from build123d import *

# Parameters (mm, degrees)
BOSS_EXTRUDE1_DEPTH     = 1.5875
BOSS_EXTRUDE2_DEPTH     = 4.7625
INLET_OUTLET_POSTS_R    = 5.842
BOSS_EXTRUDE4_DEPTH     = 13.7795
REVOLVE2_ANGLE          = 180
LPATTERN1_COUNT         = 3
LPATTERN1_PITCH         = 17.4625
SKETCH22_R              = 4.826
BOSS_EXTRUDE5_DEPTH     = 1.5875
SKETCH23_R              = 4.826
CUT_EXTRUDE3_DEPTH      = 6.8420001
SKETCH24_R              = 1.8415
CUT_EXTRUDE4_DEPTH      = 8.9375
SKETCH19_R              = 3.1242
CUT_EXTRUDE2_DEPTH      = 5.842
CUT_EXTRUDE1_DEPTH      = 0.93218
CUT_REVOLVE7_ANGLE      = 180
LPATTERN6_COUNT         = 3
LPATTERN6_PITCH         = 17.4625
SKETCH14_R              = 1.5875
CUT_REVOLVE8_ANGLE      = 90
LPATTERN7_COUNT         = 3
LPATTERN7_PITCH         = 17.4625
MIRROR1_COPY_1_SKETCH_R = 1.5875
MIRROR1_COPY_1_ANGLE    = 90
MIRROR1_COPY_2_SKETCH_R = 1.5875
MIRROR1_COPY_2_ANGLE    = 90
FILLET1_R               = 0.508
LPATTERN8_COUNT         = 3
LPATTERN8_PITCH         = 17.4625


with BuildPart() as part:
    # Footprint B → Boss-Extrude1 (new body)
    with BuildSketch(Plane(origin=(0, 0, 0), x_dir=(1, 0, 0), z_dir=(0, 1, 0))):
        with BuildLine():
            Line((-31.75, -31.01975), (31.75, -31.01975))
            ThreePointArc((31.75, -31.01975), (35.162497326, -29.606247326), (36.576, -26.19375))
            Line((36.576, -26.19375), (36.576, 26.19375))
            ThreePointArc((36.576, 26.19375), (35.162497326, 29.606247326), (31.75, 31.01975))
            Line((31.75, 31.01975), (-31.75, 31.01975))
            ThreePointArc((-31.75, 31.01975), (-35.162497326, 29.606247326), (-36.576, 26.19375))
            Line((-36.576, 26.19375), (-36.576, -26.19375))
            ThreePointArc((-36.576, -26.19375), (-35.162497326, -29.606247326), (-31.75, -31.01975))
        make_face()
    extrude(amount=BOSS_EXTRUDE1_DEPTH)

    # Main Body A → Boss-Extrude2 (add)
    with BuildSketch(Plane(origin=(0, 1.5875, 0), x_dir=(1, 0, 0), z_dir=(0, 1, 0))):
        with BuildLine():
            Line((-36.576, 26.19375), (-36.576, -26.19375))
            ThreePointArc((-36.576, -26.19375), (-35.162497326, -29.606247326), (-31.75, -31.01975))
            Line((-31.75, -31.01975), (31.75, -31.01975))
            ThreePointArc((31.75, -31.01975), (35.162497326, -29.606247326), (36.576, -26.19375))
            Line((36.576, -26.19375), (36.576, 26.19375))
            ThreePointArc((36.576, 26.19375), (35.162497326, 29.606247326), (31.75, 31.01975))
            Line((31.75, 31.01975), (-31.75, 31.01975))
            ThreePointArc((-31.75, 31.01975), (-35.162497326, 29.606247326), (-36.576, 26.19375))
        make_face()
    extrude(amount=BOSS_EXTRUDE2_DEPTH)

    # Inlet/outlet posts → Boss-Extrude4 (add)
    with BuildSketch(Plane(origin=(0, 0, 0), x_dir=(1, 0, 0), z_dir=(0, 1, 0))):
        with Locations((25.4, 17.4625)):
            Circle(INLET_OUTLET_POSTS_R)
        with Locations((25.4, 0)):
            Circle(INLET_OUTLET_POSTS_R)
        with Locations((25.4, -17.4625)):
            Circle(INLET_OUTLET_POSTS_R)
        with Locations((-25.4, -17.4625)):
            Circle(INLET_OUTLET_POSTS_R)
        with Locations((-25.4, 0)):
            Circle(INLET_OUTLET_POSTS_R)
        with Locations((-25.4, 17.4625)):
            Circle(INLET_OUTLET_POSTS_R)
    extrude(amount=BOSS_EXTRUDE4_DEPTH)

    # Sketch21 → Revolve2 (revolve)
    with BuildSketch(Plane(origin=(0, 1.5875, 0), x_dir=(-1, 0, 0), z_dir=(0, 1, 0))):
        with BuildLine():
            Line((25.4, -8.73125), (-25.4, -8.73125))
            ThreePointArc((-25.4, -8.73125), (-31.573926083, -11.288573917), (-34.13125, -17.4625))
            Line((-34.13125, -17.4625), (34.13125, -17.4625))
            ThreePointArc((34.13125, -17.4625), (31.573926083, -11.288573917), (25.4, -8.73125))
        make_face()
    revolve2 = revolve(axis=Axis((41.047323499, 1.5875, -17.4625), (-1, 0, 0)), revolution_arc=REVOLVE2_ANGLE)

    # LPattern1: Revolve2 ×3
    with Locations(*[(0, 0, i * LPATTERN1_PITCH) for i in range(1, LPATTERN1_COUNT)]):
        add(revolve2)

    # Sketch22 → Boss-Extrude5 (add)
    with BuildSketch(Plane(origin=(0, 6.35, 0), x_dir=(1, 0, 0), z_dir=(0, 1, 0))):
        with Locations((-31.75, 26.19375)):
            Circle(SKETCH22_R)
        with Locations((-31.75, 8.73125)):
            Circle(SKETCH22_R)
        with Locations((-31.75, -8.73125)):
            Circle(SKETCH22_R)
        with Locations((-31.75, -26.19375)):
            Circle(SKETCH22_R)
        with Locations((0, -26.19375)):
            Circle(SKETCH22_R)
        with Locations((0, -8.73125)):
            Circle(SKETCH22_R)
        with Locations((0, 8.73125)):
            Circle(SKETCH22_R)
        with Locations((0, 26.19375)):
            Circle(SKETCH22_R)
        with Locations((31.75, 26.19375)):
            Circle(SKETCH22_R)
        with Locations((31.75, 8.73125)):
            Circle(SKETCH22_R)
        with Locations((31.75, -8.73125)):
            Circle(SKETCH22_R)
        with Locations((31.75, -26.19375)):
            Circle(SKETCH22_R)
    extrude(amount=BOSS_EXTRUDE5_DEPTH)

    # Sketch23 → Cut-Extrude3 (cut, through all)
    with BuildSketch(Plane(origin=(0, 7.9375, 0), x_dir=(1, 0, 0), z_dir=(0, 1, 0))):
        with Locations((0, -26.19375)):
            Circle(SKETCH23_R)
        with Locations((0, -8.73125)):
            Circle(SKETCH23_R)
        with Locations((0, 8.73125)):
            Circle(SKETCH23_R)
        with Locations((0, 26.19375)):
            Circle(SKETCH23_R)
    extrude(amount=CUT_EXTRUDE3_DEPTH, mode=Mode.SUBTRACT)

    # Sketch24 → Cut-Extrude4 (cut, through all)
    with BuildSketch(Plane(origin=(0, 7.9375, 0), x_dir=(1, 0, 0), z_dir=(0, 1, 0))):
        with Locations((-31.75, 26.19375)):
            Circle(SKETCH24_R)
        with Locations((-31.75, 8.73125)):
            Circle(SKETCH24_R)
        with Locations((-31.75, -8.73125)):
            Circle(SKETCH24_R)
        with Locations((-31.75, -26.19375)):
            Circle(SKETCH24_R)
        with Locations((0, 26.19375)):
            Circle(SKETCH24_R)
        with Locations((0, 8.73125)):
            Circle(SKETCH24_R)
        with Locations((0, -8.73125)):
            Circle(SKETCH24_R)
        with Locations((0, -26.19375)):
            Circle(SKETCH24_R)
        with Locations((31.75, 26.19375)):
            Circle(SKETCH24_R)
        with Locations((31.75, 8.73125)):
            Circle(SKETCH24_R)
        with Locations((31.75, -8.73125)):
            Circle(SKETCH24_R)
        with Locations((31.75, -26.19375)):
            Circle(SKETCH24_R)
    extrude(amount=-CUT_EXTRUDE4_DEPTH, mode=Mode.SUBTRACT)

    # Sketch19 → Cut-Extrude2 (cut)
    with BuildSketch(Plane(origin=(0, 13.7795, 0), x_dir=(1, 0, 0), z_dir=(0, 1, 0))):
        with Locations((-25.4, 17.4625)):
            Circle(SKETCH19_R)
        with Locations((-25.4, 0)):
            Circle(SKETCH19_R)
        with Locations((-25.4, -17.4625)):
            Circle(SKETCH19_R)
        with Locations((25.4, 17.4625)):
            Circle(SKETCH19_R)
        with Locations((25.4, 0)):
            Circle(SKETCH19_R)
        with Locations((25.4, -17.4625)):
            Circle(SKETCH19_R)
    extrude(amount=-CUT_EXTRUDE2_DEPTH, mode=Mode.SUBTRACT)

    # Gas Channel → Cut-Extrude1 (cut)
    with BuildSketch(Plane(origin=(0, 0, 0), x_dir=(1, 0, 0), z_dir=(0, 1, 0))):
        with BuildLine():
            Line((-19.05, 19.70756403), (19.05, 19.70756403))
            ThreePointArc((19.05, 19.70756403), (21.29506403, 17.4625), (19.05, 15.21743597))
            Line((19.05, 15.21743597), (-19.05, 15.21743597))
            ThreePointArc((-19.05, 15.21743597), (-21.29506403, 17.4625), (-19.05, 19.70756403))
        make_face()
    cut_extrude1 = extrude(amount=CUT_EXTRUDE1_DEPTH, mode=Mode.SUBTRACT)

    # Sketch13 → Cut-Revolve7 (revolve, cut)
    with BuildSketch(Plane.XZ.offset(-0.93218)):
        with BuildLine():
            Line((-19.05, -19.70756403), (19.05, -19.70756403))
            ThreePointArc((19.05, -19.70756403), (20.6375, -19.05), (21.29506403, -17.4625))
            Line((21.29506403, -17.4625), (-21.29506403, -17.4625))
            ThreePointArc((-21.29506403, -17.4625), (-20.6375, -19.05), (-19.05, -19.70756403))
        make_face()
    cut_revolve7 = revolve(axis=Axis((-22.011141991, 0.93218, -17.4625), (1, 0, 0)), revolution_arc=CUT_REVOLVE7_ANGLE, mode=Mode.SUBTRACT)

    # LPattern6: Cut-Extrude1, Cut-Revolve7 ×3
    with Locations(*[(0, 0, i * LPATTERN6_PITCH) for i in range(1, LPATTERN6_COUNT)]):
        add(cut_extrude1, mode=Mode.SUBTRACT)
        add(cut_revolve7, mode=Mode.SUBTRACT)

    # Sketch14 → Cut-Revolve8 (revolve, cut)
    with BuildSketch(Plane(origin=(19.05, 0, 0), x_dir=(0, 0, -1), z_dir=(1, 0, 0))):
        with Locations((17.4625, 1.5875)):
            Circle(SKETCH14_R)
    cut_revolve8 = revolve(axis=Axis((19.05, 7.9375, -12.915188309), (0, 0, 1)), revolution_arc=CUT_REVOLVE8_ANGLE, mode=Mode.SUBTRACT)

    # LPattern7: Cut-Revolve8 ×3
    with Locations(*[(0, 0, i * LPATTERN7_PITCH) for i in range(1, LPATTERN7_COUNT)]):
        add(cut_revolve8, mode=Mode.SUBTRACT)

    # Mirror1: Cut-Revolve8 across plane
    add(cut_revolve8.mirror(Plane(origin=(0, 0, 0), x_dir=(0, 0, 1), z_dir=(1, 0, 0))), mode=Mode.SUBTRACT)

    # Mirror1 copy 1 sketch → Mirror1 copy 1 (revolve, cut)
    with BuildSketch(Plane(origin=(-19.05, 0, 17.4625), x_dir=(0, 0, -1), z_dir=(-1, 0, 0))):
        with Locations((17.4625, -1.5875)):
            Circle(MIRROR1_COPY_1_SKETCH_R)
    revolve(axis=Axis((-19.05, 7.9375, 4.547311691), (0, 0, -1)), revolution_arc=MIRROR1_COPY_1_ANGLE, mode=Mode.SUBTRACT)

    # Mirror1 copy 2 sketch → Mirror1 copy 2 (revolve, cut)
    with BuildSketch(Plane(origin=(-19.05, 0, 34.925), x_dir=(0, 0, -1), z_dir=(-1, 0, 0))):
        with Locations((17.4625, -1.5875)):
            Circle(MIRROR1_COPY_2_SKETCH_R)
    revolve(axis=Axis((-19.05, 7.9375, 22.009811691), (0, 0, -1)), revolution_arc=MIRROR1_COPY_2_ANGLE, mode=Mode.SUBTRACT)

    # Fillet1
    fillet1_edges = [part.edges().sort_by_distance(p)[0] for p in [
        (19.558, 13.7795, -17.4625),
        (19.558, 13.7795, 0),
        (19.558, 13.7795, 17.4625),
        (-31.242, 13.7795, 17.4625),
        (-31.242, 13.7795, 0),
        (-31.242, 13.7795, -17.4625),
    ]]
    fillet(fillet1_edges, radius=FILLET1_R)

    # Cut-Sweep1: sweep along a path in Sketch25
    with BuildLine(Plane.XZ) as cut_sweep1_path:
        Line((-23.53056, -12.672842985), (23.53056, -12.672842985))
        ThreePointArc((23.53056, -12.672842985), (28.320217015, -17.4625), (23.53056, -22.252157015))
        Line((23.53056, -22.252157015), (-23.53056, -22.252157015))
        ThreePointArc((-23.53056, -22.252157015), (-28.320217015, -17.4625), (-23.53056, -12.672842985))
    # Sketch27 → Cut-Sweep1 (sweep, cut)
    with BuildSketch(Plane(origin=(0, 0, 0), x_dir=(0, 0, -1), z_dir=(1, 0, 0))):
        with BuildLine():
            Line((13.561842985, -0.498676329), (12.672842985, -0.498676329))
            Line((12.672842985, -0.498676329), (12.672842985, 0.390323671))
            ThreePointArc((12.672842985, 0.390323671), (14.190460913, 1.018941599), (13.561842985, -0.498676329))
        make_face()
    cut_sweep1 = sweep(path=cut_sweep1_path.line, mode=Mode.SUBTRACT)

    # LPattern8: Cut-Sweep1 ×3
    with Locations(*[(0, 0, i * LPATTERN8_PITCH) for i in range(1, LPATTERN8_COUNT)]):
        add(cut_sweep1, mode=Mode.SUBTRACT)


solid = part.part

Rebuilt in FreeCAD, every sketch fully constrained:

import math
import FreeCAD as App
import Part
import Sketcher
Q = App.Units.Quantity


def edges_at(feature, points):
    """Names of the edges that pass closest to the given points."""
    edges = feature.Shape.Edges
    near = lambda p: min(range(len(edges)), key=lambda i: edges[i].distToShape(Part.Vertex(*p))[0])
    return sorted({f"Edge{near(p) + 1}" for p in points})

doc = App.newDocument("Part")
body = doc.addObject("PartDesign::Body", "Body")

# Sketch on XZ plane
sketch1 = doc.addObject("Sketcher::SketchObject", "Sketch")
body.addObject(sketch1)
sketch1.AttachmentSupport = (doc.XZ_Plane, [""])
sketch1.MapMode = "FlatFace"
sketch1.addGeometry(Part.LineSegment(App.Vector(-31.8, 31, 0), App.Vector(31.8, 31, 0)), False)
sketch1.addGeometry(Part.ArcOfCircle(Part.Circle(App.Vector(31.8, 26.2, 0), App.Vector(0, 0, 1), 4.8), math.radians(0), math.radians(90)), False)
sketch1.addGeometry(Part.LineSegment(App.Vector(36.6, 26.2, 0), App.Vector(36.6, -26.2, 0)), False)
sketch1.addGeometry(Part.ArcOfCircle(Part.Circle(App.Vector(31.8, -26.2, 0), App.Vector(0, 0, 1), 4.8), math.radians(-90), math.radians(0)), False)
sketch1.addGeometry(Part.LineSegment(App.Vector(31.8, -31, 0), App.Vector(-31.8, -31, 0)), False)
sketch1.addGeometry(Part.ArcOfCircle(Part.Circle(App.Vector(-31.8, -26.2, 0), App.Vector(0, 0, 1), 4.8), math.radians(180), math.radians(270)), False)
sketch1.addGeometry(Part.LineSegment(App.Vector(-36.6, -26.2, 0), App.Vector(-36.6, 26.2, 0)), False)
sketch1.addGeometry(Part.ArcOfCircle(Part.Circle(App.Vector(-31.8, 26.2, 0), App.Vector(0, 0, 1), 4.8), math.radians(90), math.radians(180)), False)
sketch1.addConstraint(Sketcher.Constraint("Tangent", 0, 2, 1, 2))
sketch1.addConstraint(Sketcher.Constraint("Tangent", 1, 1, 2, 1))
sketch1.addConstraint(Sketcher.Constraint("Tangent", 2, 2, 3, 2))
sketch1.addConstraint(Sketcher.Constraint("Tangent", 3, 1, 4, 1))
sketch1.addConstraint(Sketcher.Constraint("Tangent", 4, 2, 5, 2))
sketch1.addConstraint(Sketcher.Constraint("Tangent", 5, 1, 6, 1))
sketch1.addConstraint(Sketcher.Constraint("Tangent", 6, 2, 7, 2))
sketch1.addConstraint(Sketcher.Constraint("Tangent", 7, 1, 0, 1))
sketch1.addConstraint(Sketcher.Constraint("Horizontal", 0))
sketch1.addConstraint(Sketcher.Constraint("Vertical", 2))
sketch1.addConstraint(Sketcher.Constraint("Horizontal", 4))
sketch1.addConstraint(Sketcher.Constraint("Vertical", 6))
sketch1.addConstraint(Sketcher.Constraint("Equal", 1, 3))
sketch1.addConstraint(Sketcher.Constraint("Equal", 3, 5))
sketch1.addConstraint(Sketcher.Constraint("Equal", 5, 7))
sketch1.addConstraint(Sketcher.Constraint("Symmetric", 1, 3, 5, 3, -1, 1))
sketch1.addConstraint(Sketcher.Constraint("Radius", 1, Q("0.19 in")))
sketch1.addConstraint(Sketcher.Constraint("DistanceX", 0, 1, 0, 2, Q("2.5 in")))
sketch1.addConstraint(Sketcher.Constraint("DistanceY", 2, 2, 2, 1, Q("2.0625 in")))
pad1 = doc.addObject("PartDesign::Pad", "Pad")
body.addObject(pad1)
pad1.Profile = sketch1
pad1.Length = Q("0.0625 in")
pad1.Reversed = True

# Sketch on XZ plane
sketch2 = doc.addObject("Sketcher::SketchObject", "Sketch001")
body.addObject(sketch2)
sketch2.AttachmentSupport = (doc.XZ_Plane, [""])
sketch2.MapMode = "FlatFace"
sketch2.AttachmentOffset = App.Placement(App.Vector(0, 0, -0.0625 * 25.4), App.Rotation())
sketch2.addGeometry(Part.LineSegment(App.Vector(-36.6, -26.2, 0), App.Vector(-36.6, 26.2, 0)), False)
sketch2.addGeometry(Part.ArcOfCircle(Part.Circle(App.Vector(-31.8, 26.2, 0), App.Vector(0, 0, 1), 4.8), math.radians(90), math.radians(180)), False)
sketch2.addGeometry(Part.LineSegment(App.Vector(-31.8, 31, 0), App.Vector(31.8, 31, 0)), False)
sketch2.addGeometry(Part.ArcOfCircle(Part.Circle(App.Vector(31.8, 26.2, 0), App.Vector(0, 0, 1), 4.8), math.radians(0), math.radians(90)), False)
sketch2.addGeometry(Part.LineSegment(App.Vector(36.6, 26.2, 0), App.Vector(36.6, -26.2, 0)), False)
sketch2.addGeometry(Part.ArcOfCircle(Part.Circle(App.Vector(31.8, -26.2, 0), App.Vector(0, 0, 1), 4.8), math.radians(-90), math.radians(0)), False)
sketch2.addGeometry(Part.LineSegment(App.Vector(31.8, -31, 0), App.Vector(-31.8, -31, 0)), False)
sketch2.addGeometry(Part.ArcOfCircle(Part.Circle(App.Vector(-31.8, -26.2, 0), App.Vector(0, 0, 1), 4.8), math.radians(180), math.radians(270)), False)
sketch2.addConstraint(Sketcher.Constraint("Tangent", 0, 2, 1, 2))
sketch2.addConstraint(Sketcher.Constraint("Tangent", 1, 1, 2, 1))
sketch2.addConstraint(Sketcher.Constraint("Tangent", 2, 2, 3, 2))
sketch2.addConstraint(Sketcher.Constraint("Tangent", 3, 1, 4, 1))
sketch2.addConstraint(Sketcher.Constraint("Tangent", 4, 2, 5, 2))
sketch2.addConstraint(Sketcher.Constraint("Tangent", 5, 1, 6, 1))
sketch2.addConstraint(Sketcher.Constraint("Tangent", 6, 2, 7, 2))
sketch2.addConstraint(Sketcher.Constraint("Tangent", 7, 1, 0, 1))
sketch2.addConstraint(Sketcher.Constraint("Vertical", 0))
sketch2.addConstraint(Sketcher.Constraint("Horizontal", 2))
sketch2.addConstraint(Sketcher.Constraint("Vertical", 4))
sketch2.addConstraint(Sketcher.Constraint("Horizontal", 6))
sketch2.addConstraint(Sketcher.Constraint("Equal", 1, 3))
sketch2.addConstraint(Sketcher.Constraint("Equal", 3, 5))
sketch2.addConstraint(Sketcher.Constraint("Equal", 5, 7))
sketch2.addConstraint(Sketcher.Constraint("Symmetric", 1, 3, 5, 3, -1, 1))
sketch2.addConstraint(Sketcher.Constraint("Radius", 1, Q("0.19 in")))
sketch2.addConstraint(Sketcher.Constraint("DistanceX", 2, 1, 2, 2, Q("2.5 in")))
sketch2.addConstraint(Sketcher.Constraint("DistanceY", 0, 1, 0, 2, Q("2.0625 in")))
pad2 = doc.addObject("PartDesign::Pad", "Pad001")
body.addObject(pad2)
pad2.Profile = sketch2
pad2.Length = Q("0.1875 in")
pad2.Reversed = True

# Sketch on XZ plane
sketch3 = doc.addObject("Sketcher::SketchObject", "Sketch002")
body.addObject(sketch3)
sketch3.AttachmentSupport = (doc.XZ_Plane, [""])
sketch3.MapMode = "FlatFace"
sketch3.addGeometry(Part.Circle(App.Vector(25, -17, 0), App.Vector(0, 0, 1), 6), False)
sketch3.addGeometry(Part.Circle(App.Vector(25, 0, 0), App.Vector(0, 0, 1), 6), False)
sketch3.addGeometry(Part.Circle(App.Vector(25, 17, 0), App.Vector(0, 0, 1), 6), False)
sketch3.addGeometry(Part.Circle(App.Vector(-25, 17, 0), App.Vector(0, 0, 1), 6), False)
sketch3.addGeometry(Part.Circle(App.Vector(-25, 0, 0), App.Vector(0, 0, 1), 6), False)
sketch3.addGeometry(Part.Circle(App.Vector(-25, -17, 0), App.Vector(0, 0, 1), 6), False)
sketch3.addConstraint(Sketcher.Constraint("Equal", 0, 1))
sketch3.addConstraint(Sketcher.Constraint("Equal", 1, 2))
sketch3.addConstraint(Sketcher.Constraint("Equal", 2, 3))
sketch3.addConstraint(Sketcher.Constraint("Equal", 3, 4))
sketch3.addConstraint(Sketcher.Constraint("Equal", 4, 5))
sketch3.addConstraint(Sketcher.Constraint("Symmetric", 0, 3, 3, 3, -1, 1))
sketch3.addConstraint(Sketcher.Constraint("Symmetric", 1, 3, 4, 3, -1, 1))
sketch3.addConstraint(Sketcher.Constraint("Symmetric", 2, 3, 5, 3, -1, 1))
sketch3.addConstraint(Sketcher.Constraint("Symmetric", 2, 3, 3, 3, -2))
sketch3.addConstraint(Sketcher.Constraint("PointOnObject", 1, 3, -1))
sketch3.addConstraint(Sketcher.Constraint("Vertical", 0, 3, 1, 3))
sketch3.addConstraint(Sketcher.Constraint("Diameter", 0, Q("0.46 in")))
sketch3.addConstraint(Sketcher.Constraint("DistanceX", -1, 1, 0, 3, Q("1 in")))
sketch3.addConstraint(Sketcher.Constraint("DistanceY", 0, 3, -1, 1, Q("0.6875 in")))
pad3 = doc.addObject("PartDesign::Pad", "Pad002")
body.addObject(pad3)
pad3.Profile = sketch3
pad3.Length = Q("0.5425 in")
pad3.Reversed = True

# Sketch on XZ plane
sketch4 = doc.addObject("Sketcher::SketchObject", "Sketch003")
body.addObject(sketch4)
sketch4.AttachmentSupport = (doc.XZ_Plane, [""])
sketch4.MapMode = "FlatFace"
sketch4.AttachmentOffset = App.Placement(App.Vector(0, 0, -0.0625 * 25.4), App.Rotation())
sketch4.addGeometry(Part.LineSegment(App.Vector(-25, -9, 0), App.Vector(25, -9, 0)), False)
sketch4.addGeometry(Part.ArcOfCircle(Part.Circle(App.Vector(25, -17, 0), App.Vector(0, 0, 1), 9), math.radians(0), math.radians(90)), False)
sketch4.addGeometry(Part.LineSegment(App.Vector(34, -17, 0), App.Vector(-34, -17, 0)), False)
sketch4.addGeometry(Part.ArcOfCircle(Part.Circle(App.Vector(-25, -17, 0), App.Vector(0, 0, 1), 9), math.radians(90), math.radians(180)), False)
sketch4.addGeometry(Part.LineSegment(App.Vector(34, -17, 0), App.Vector(-34, -17, 0)), True)  # axis
sketch4.addConstraint(Sketcher.Constraint("Tangent", 0, 2, 1, 2))
sketch4.addConstraint(Sketcher.Constraint("Coincident", 1, 1, 2, 1))
sketch4.addConstraint(Sketcher.Constraint("Coincident", 2, 2, 3, 2))
sketch4.addConstraint(Sketcher.Constraint("Tangent", 3, 1, 0, 1))
sketch4.addConstraint(Sketcher.Constraint("Horizontal", 0))
sketch4.addConstraint(Sketcher.Constraint("Horizontal", 2))
sketch4.addConstraint(Sketcher.Constraint("Horizontal", 4))
sketch4.addConstraint(Sketcher.Constraint("Coincident", 4, 1, 1, 1))
sketch4.addConstraint(Sketcher.Constraint("Equal", 1, 3))
sketch4.addConstraint(Sketcher.Constraint("Horizontal", 3, 3, 1, 1))
sketch4.addConstraint(Sketcher.Constraint("Equal", 2, 4))
sketch4.addConstraint(Sketcher.Constraint("DistanceX", 0, 1, 0, 2, Q("2 in")))
sketch4.addConstraint(Sketcher.Constraint("DistanceX", -1, 1, 1, 3, Q("1 in")))
sketch4.addConstraint(Sketcher.Constraint("Radius", 1, Q("0.34375 in")))
sketch4.addConstraint(Sketcher.Constraint("DistanceY", 1, 3, -1, 1, Q("0.6875 in")))
revolution = doc.addObject("PartDesign::Revolution", "Revolution")
body.addObject(revolution)
revolution.Profile = sketch4
revolution.ReferenceAxis = (sketch4, ["Axis0"])
revolution.Angle = 180
doc.recompute()

linearpattern = doc.addObject("PartDesign::LinearPattern", "LinearPattern")
body.addObject(linearpattern)
linearpattern.Originals = [revolution]
linearpattern.Direction = (doc.Z_Axis, [""])
linearpattern.Mode = "offset"
linearpattern.Offset = Q("0.6875 in")
linearpattern.Occurrences = 3
body.Tip = linearpattern

# Sketch on XZ plane
sketch5 = doc.addObject("Sketcher::SketchObject", "Sketch004")
body.addObject(sketch5)
sketch5.AttachmentSupport = (doc.XZ_Plane, [""])
sketch5.MapMode = "FlatFace"
sketch5.AttachmentOffset = App.Placement(App.Vector(0, 0, -0.25 * 25.4), App.Rotation())
sketch5.addGeometry(Part.Circle(App.Vector(-31.8, -26.2, 0), App.Vector(0, 0, 1), 4.8), False)
sketch5.addGeometry(Part.Circle(App.Vector(-31.8, -8.7, 0), App.Vector(0, 0, 1), 4.8), False)
sketch5.addGeometry(Part.Circle(App.Vector(-31.8, 8.7, 0), App.Vector(0, 0, 1), 4.8), False)
sketch5.addGeometry(Part.Circle(App.Vector(-31.8, 26.2, 0), App.Vector(0, 0, 1), 4.8), False)
sketch5.addGeometry(Part.Circle(App.Vector(0, 26.2, 0), App.Vector(0, 0, 1), 4.8), False)
sketch5.addGeometry(Part.Circle(App.Vector(0, 8.7, 0), App.Vector(0, 0, 1), 4.8), False)
sketch5.addGeometry(Part.Circle(App.Vector(0, -8.7, 0), App.Vector(0, 0, 1), 4.8), False)
sketch5.addGeometry(Part.Circle(App.Vector(0, -26.2, 0), App.Vector(0, 0, 1), 4.8), False)
sketch5.addGeometry(Part.Circle(App.Vector(31.8, -26.2, 0), App.Vector(0, 0, 1), 4.8), False)
sketch5.addGeometry(Part.Circle(App.Vector(31.8, -8.7, 0), App.Vector(0, 0, 1), 4.8), False)
sketch5.addGeometry(Part.Circle(App.Vector(31.8, 8.7, 0), App.Vector(0, 0, 1), 4.8), False)
sketch5.addGeometry(Part.Circle(App.Vector(31.8, 26.2, 0), App.Vector(0, 0, 1), 4.8), False)
sketch5.addConstraint(Sketcher.Constraint("Equal", 0, 1))
sketch5.addConstraint(Sketcher.Constraint("Equal", 1, 2))
sketch5.addConstraint(Sketcher.Constraint("Equal", 2, 3))
sketch5.addConstraint(Sketcher.Constraint("Equal", 3, 4))
sketch5.addConstraint(Sketcher.Constraint("Equal", 4, 5))
sketch5.addConstraint(Sketcher.Constraint("Equal", 5, 6))
sketch5.addConstraint(Sketcher.Constraint("Equal", 6, 7))
sketch5.addConstraint(Sketcher.Constraint("Equal", 7, 8))
sketch5.addConstraint(Sketcher.Constraint("Equal", 8, 9))
sketch5.addConstraint(Sketcher.Constraint("Equal", 9, 10))
sketch5.addConstraint(Sketcher.Constraint("Equal", 10, 11))
sketch5.addConstraint(Sketcher.Constraint("Symmetric", 5, 3, 6, 3, -1, 1))
sketch5.addConstraint(Sketcher.Constraint("Symmetric", 4, 3, 7, 3, -1, 1))
sketch5.addConstraint(Sketcher.Constraint("Symmetric", 3, 3, 8, 3, -1, 1))
sketch5.addConstraint(Sketcher.Constraint("Symmetric", 2, 3, 9, 3, -1, 1))
sketch5.addConstraint(Sketcher.Constraint("Symmetric", 1, 3, 10, 3, -1, 1))
sketch5.addConstraint(Sketcher.Constraint("Symmetric", 0, 3, 11, 3, -1, 1))
sketch5.addConstraint(Sketcher.Constraint("Symmetric", 0, 3, 8, 3, -2))
sketch5.addConstraint(Sketcher.Constraint("Symmetric", 1, 3, 9, 3, -2))
sketch5.addConstraint(Sketcher.Constraint("PointOnObject", 4, 3, -2))
sketch5.addConstraint(Sketcher.Constraint("PointOnObject", 5, 3, -2))
sketch5.addConstraint(Sketcher.Constraint("Horizontal", 3, 3, 4, 3))
sketch5.addConstraint(Sketcher.Constraint("Horizontal", 2, 3, 5, 3))
sketch5.addConstraint(Sketcher.Constraint("Vertical", 0, 3, 1, 3))
sketch5.addConstraint(Sketcher.Constraint("Diameter", 0, Q("0.38 in")))
sketch5.addConstraint(Sketcher.Constraint("DistanceX", 0, 3, 8, 3, Q("2.5 in")))
sketch5.addConstraint(Sketcher.Constraint("DistanceY", 0, 3, -1, 1, Q("1.03125 in")))
sketch5.addConstraint(Sketcher.Constraint("DistanceY", 1, 3, -1, 1, Q("0.34375 in")))
pad4 = doc.addObject("PartDesign::Pad", "Pad003")
body.addObject(pad4)
pad4.Profile = sketch5
pad4.Length = Q("0.0625 in")
pad4.Reversed = True

# Sketch on XZ plane
sketch6 = doc.addObject("Sketcher::SketchObject", "Sketch005")
body.addObject(sketch6)
sketch6.AttachmentSupport = (doc.XZ_Plane, [""])
sketch6.MapMode = "FlatFace"
sketch6.AttachmentOffset = App.Placement(App.Vector(0, 0, -0.3125 * 25.4), App.Rotation())
sketch6.addGeometry(Part.Circle(App.Vector(0, 26.2, 0), App.Vector(0, 0, 1), 4.8), False)
sketch6.addGeometry(Part.Circle(App.Vector(0, 8.7, 0), App.Vector(0, 0, 1), 4.8), False)
sketch6.addGeometry(Part.Circle(App.Vector(0, -8.7, 0), App.Vector(0, 0, 1), 4.8), False)
sketch6.addGeometry(Part.Circle(App.Vector(0, -26.2, 0), App.Vector(0, 0, 1), 4.8), False)
sketch6.addConstraint(Sketcher.Constraint("Equal", 0, 1))
sketch6.addConstraint(Sketcher.Constraint("Equal", 1, 2))
sketch6.addConstraint(Sketcher.Constraint("Equal", 2, 3))
sketch6.addConstraint(Sketcher.Constraint("Symmetric", 1, 3, 2, 3, -1, 1))
sketch6.addConstraint(Sketcher.Constraint("Symmetric", 0, 3, 3, 3, -1, 1))
sketch6.addConstraint(Sketcher.Constraint("PointOnObject", 0, 3, -2))
sketch6.addConstraint(Sketcher.Constraint("PointOnObject", 1, 3, -2))
sketch6.addConstraint(Sketcher.Constraint("Diameter", 0, Q("0.38 in")))
sketch6.addConstraint(Sketcher.Constraint("DistanceY", -1, 1, 0, 3, Q("1.03125 in")))
sketch6.addConstraint(Sketcher.Constraint("DistanceY", -1, 1, 1, 3, Q("0.34375 in")))
pocket1 = doc.addObject("PartDesign::Pocket", "Pocket")
body.addObject(pocket1)
pocket1.Profile = sketch6
pocket1.Type = "ThroughAll"

# Sketch on XZ plane
sketch7 = doc.addObject("Sketcher::SketchObject", "Sketch006")
body.addObject(sketch7)
sketch7.AttachmentSupport = (doc.XZ_Plane, [""])
sketch7.MapMode = "FlatFace"
sketch7.AttachmentOffset = App.Placement(App.Vector(0, 0, -0.3125 * 25.4), App.Rotation())
sketch7.addGeometry(Part.Circle(App.Vector(-31.8, -26.2, 0), App.Vector(0, 0, 1), 1.8), False)
sketch7.addGeometry(Part.Circle(App.Vector(-31.8, -8.7, 0), App.Vector(0, 0, 1), 1.8), False)
sketch7.addGeometry(Part.Circle(App.Vector(-31.8, 8.7, 0), App.Vector(0, 0, 1), 1.8), False)
sketch7.addGeometry(Part.Circle(App.Vector(-31.8, 26.2, 0), App.Vector(0, 0, 1), 1.8), False)
sketch7.addGeometry(Part.Circle(App.Vector(0, -26.2, 0), App.Vector(0, 0, 1), 1.8), False)
sketch7.addGeometry(Part.Circle(App.Vector(0, -8.7, 0), App.Vector(0, 0, 1), 1.8), False)
sketch7.addGeometry(Part.Circle(App.Vector(0, 8.7, 0), App.Vector(0, 0, 1), 1.8), False)
sketch7.addGeometry(Part.Circle(App.Vector(0, 26.2, 0), App.Vector(0, 0, 1), 1.8), False)
sketch7.addGeometry(Part.Circle(App.Vector(31.8, -26.2, 0), App.Vector(0, 0, 1), 1.8), False)
sketch7.addGeometry(Part.Circle(App.Vector(31.8, -8.7, 0), App.Vector(0, 0, 1), 1.8), False)
sketch7.addGeometry(Part.Circle(App.Vector(31.8, 8.7, 0), App.Vector(0, 0, 1), 1.8), False)
sketch7.addGeometry(Part.Circle(App.Vector(31.8, 26.2, 0), App.Vector(0, 0, 1), 1.8), False)
sketch7.addConstraint(Sketcher.Constraint("Equal", 0, 1))
sketch7.addConstraint(Sketcher.Constraint("Equal", 1, 2))
sketch7.addConstraint(Sketcher.Constraint("Equal", 2, 3))
sketch7.addConstraint(Sketcher.Constraint("Equal", 3, 4))
sketch7.addConstraint(Sketcher.Constraint("Equal", 4, 5))
sketch7.addConstraint(Sketcher.Constraint("Equal", 5, 6))
sketch7.addConstraint(Sketcher.Constraint("Equal", 6, 7))
sketch7.addConstraint(Sketcher.Constraint("Equal", 7, 8))
sketch7.addConstraint(Sketcher.Constraint("Equal", 8, 9))
sketch7.addConstraint(Sketcher.Constraint("Equal", 9, 10))
sketch7.addConstraint(Sketcher.Constraint("Equal", 10, 11))
sketch7.addConstraint(Sketcher.Constraint("Symmetric", 5, 3, 6, 3, -1, 1))
sketch7.addConstraint(Sketcher.Constraint("Symmetric", 4, 3, 7, 3, -1, 1))
sketch7.addConstraint(Sketcher.Constraint("Symmetric", 3, 3, 8, 3, -1, 1))
sketch7.addConstraint(Sketcher.Constraint("Symmetric", 2, 3, 9, 3, -1, 1))
sketch7.addConstraint(Sketcher.Constraint("Symmetric", 1, 3, 10, 3, -1, 1))
sketch7.addConstraint(Sketcher.Constraint("Symmetric", 0, 3, 11, 3, -1, 1))
sketch7.addConstraint(Sketcher.Constraint("Symmetric", 0, 3, 8, 3, -2))
sketch7.addConstraint(Sketcher.Constraint("Symmetric", 1, 3, 9, 3, -2))
sketch7.addConstraint(Sketcher.Constraint("PointOnObject", 4, 3, -2))
sketch7.addConstraint(Sketcher.Constraint("PointOnObject", 5, 3, -2))
sketch7.addConstraint(Sketcher.Constraint("Horizontal", 0, 3, 4, 3))
sketch7.addConstraint(Sketcher.Constraint("Horizontal", 1, 3, 5, 3))
sketch7.addConstraint(Sketcher.Constraint("Vertical", 0, 3, 1, 3))
sketch7.addConstraint(Sketcher.Constraint("Diameter", 0, Q("0.145 in")))
sketch7.addConstraint(Sketcher.Constraint("DistanceX", 0, 3, 8, 3, Q("2.5 in")))
sketch7.addConstraint(Sketcher.Constraint("DistanceY", 0, 3, -1, 1, Q("1.03125 in")))
sketch7.addConstraint(Sketcher.Constraint("DistanceY", 1, 3, -1, 1, Q("0.34375 in")))
pocket2 = doc.addObject("PartDesign::Pocket", "Pocket001")
body.addObject(pocket2)
pocket2.Profile = sketch7
pocket2.Type = "ThroughAll"
pocket2.Reversed = True

# Sketch on XZ plane
sketch8 = doc.addObject("Sketcher::SketchObject", "Sketch007")
body.addObject(sketch8)
sketch8.AttachmentSupport = (doc.XZ_Plane, [""])
sketch8.MapMode = "FlatFace"
sketch8.AttachmentOffset = App.Placement(App.Vector(0, 0, -0.5425 * 25.4), App.Rotation())
sketch8.addGeometry(Part.Circle(App.Vector(-25.4, -17.5, 0), App.Vector(0, 0, 1), 3.1), False)
sketch8.addGeometry(Part.Circle(App.Vector(-25.4, 0, 0), App.Vector(0, 0, 1), 3.1), False)
sketch8.addGeometry(Part.Circle(App.Vector(-25.4, 17.5, 0), App.Vector(0, 0, 1), 3.1), False)
sketch8.addGeometry(Part.Circle(App.Vector(25.4, -17.5, 0), App.Vector(0, 0, 1), 3.1), False)
sketch8.addGeometry(Part.Circle(App.Vector(25.4, 0, 0), App.Vector(0, 0, 1), 3.1), False)
sketch8.addGeometry(Part.Circle(App.Vector(25.4, 17.5, 0), App.Vector(0, 0, 1), 3.1), False)
sketch8.addConstraint(Sketcher.Constraint("Equal", 0, 1))
sketch8.addConstraint(Sketcher.Constraint("Equal", 1, 2))
sketch8.addConstraint(Sketcher.Constraint("Equal", 2, 3))
sketch8.addConstraint(Sketcher.Constraint("Equal", 3, 4))
sketch8.addConstraint(Sketcher.Constraint("Equal", 4, 5))
sketch8.addConstraint(Sketcher.Constraint("Symmetric", 2, 3, 3, 3, -1, 1))
sketch8.addConstraint(Sketcher.Constraint("Symmetric", 1, 3, 4, 3, -1, 1))
sketch8.addConstraint(Sketcher.Constraint("Symmetric", 0, 3, 5, 3, -1, 1))
sketch8.addConstraint(Sketcher.Constraint("Symmetric", 0, 3, 3, 3, -2))
sketch8.addConstraint(Sketcher.Constraint("PointOnObject", 1, 3, -1))
sketch8.addConstraint(Sketcher.Constraint("Vertical", 0, 3, 1, 3))
sketch8.addConstraint(Sketcher.Constraint("Diameter", 0, Q("0.246 in")))
sketch8.addConstraint(Sketcher.Constraint("DistanceX", 0, 3, -1, 1, Q("1 in")))
sketch8.addConstraint(Sketcher.Constraint("DistanceY", 0, 3, -1, 1, Q("0.6875 in")))
pocket3 = doc.addObject("PartDesign::Pocket", "Pocket002")
body.addObject(pocket3)
pocket3.Profile = sketch8
pocket3.Length = Q("0.23 in")
pocket3.Reversed = True

# Sketch on XZ plane
sketch9 = doc.addObject("Sketcher::SketchObject", "Sketch008")
body.addObject(sketch9)
sketch9.AttachmentSupport = (doc.XZ_Plane, [""])
sketch9.MapMode = "FlatFace"
sketch9.addGeometry(Part.LineSegment(App.Vector(19.1, -19.7, 0), App.Vector(-19.1, -19.7, 0)), False)
sketch9.addGeometry(Part.ArcOfCircle(Part.Circle(App.Vector(-19.1, -17.5, 0), App.Vector(0, 0, 1), 2.2), math.radians(90), math.radians(270)), False)
sketch9.addGeometry(Part.LineSegment(App.Vector(-19.1, -15.2, 0), App.Vector(19.1, -15.2, 0)), False)
sketch9.addGeometry(Part.ArcOfCircle(Part.Circle(App.Vector(19.1, -17.5, 0), App.Vector(0, 0, 1), 2.2), math.radians(-90), math.radians(90)), False)
sketch9.addConstraint(Sketcher.Constraint("Tangent", 0, 2, 1, 2))
sketch9.addConstraint(Sketcher.Constraint("Tangent", 1, 1, 2, 1))
sketch9.addConstraint(Sketcher.Constraint("Tangent", 2, 2, 3, 2))
sketch9.addConstraint(Sketcher.Constraint("Tangent", 3, 1, 0, 1))
sketch9.addConstraint(Sketcher.Constraint("Horizontal", 0))
sketch9.addConstraint(Sketcher.Constraint("Horizontal", 2))
sketch9.addConstraint(Sketcher.Constraint("DistanceX", 0, 2, 0, 1, Q("1.5 in")))
sketch9.addConstraint(Sketcher.Constraint("DistanceX", 1, 3, -1, 1, Q("0.75 in")))
sketch9.addConstraint(Sketcher.Constraint("DistanceY", 1, 3, -1, 1, Q("0.6875 in")))
sketch9.addConstraint(Sketcher.Constraint("Radius", 1, 2.245064))
pocket4 = doc.addObject("PartDesign::Pocket", "Pocket003")
body.addObject(pocket4)
pocket4.Profile = sketch9
pocket4.Length = Q("0.0367 in")

# Sketch on XZ plane
sketch10 = doc.addObject("Sketcher::SketchObject", "Sketch009")
body.addObject(sketch10)
sketch10.AttachmentSupport = (doc.XZ_Plane, [""])
sketch10.MapMode = "FlatFace"
sketch10.AttachmentOffset = App.Placement(App.Vector(0, 0, -0.0367 * 25.4), App.Rotation())
sketch10.addGeometry(Part.LineSegment(App.Vector(-19.1, -19.7, 0), App.Vector(19.1, -19.7, 0)), False)
sketch10.addGeometry(Part.ArcOfCircle(Part.Circle(App.Vector(19.1, -17.5, 0), App.Vector(0, 0, 1), 2.2), math.radians(-90), math.radians(0)), False)
sketch10.addGeometry(Part.LineSegment(App.Vector(21.3, -17.5, 0), App.Vector(-21.3, -17.5, 0)), False)
sketch10.addGeometry(Part.ArcOfCircle(Part.Circle(App.Vector(-19.1, -17.5, 0), App.Vector(0, 0, 1), 2.2), math.radians(180), math.radians(270)), False)
sketch10.addGeometry(Part.LineSegment(App.Vector(-21.3, -17.5, 0), App.Vector(21.3, -17.5, 0)), True)  # axis
sketch10.addConstraint(Sketcher.Constraint("Tangent", 0, 2, 1, 1))
sketch10.addConstraint(Sketcher.Constraint("Coincident", 1, 2, 2, 1))
sketch10.addConstraint(Sketcher.Constraint("Coincident", 2, 2, 3, 1))
sketch10.addConstraint(Sketcher.Constraint("Tangent", 3, 2, 0, 1))
sketch10.addConstraint(Sketcher.Constraint("Horizontal", 0))
sketch10.addConstraint(Sketcher.Constraint("Horizontal", 2))
sketch10.addConstraint(Sketcher.Constraint("Horizontal", 4))
sketch10.addConstraint(Sketcher.Constraint("Coincident", 4, 1, 2, 2))
sketch10.addConstraint(Sketcher.Constraint("Equal", 1, 3))
sketch10.addConstraint(Sketcher.Constraint("Horizontal", 3, 3, 1, 2))
sketch10.addConstraint(Sketcher.Constraint("Equal", 2, 4))
sketch10.addConstraint(Sketcher.Constraint("DistanceX", 0, 1, 0, 2, Q("1.5 in")))
sketch10.addConstraint(Sketcher.Constraint("DistanceX", -1, 1, 1, 3, Q("0.75 in")))
sketch10.addConstraint(Sketcher.Constraint("DistanceY", 1, 3, -1, 1, Q("0.6875 in")))
sketch10.addConstraint(Sketcher.Constraint("Radius", 1, 2.245064))
groove = doc.addObject("PartDesign::Groove", "Groove")
body.addObject(groove)
groove.Profile = sketch10
groove.ReferenceAxis = (sketch10, ["Axis0"])
groove.Angle = 180
doc.recompute()

linearpattern2 = doc.addObject("PartDesign::LinearPattern", "LinearPattern001")
body.addObject(linearpattern2)
linearpattern2.Originals = [pocket4, groove]
linearpattern2.Direction = (doc.Z_Axis, [""])
linearpattern2.Mode = "offset"
linearpattern2.Offset = Q("0.6875 in")
linearpattern2.Occurrences = 3
body.Tip = linearpattern2

# Sketch on YZ plane
sketch11 = doc.addObject("Sketcher::SketchObject", "Sketch010")
body.addObject(sketch11)
sketch11.AttachmentSupport = (doc.YZ_Plane, [""])
sketch11.MapMode = "FlatFace"
sketch11.AttachmentOffset = App.Placement(App.Vector(0, 0, 0.75 * 25.4), App.Rotation())
sketch11.addGeometry(Part.Circle(App.Vector(1.6, -17.5, 0), App.Vector(0, 0, 1), 1.6), False)
sketch11.addGeometry(Part.LineSegment(App.Vector(7.9, -17.5, 0), App.Vector(7.9, -7.5, 0)), True)  # axis
sketch11.addConstraint(Sketcher.Constraint("Vertical", 1))
sketch11.addConstraint(Sketcher.Constraint("Horizontal", 0, 3, 1, 1))
sketch11.addConstraint(Sketcher.Constraint("Diameter", 0, Q("0.125 in")))
sketch11.addConstraint(Sketcher.Constraint("DistanceX", 0, 3, 1, 1, Q("0.25 in")))
sketch11.addConstraint(Sketcher.Constraint("DistanceX", -1, 1, 0, 3, Q("0.0625 in")))
sketch11.addConstraint(Sketcher.Constraint("DistanceY", 0, 3, -1, 1, Q("0.6875 in")))
sketch11.addConstraint(Sketcher.Constraint("DistanceY", 1, 1, 1, 2, 10.0))
groove2 = doc.addObject("PartDesign::Groove", "Groove001")
body.addObject(groove2)
groove2.Profile = sketch11
groove2.ReferenceAxis = (sketch11, ["Axis0"])
groove2.Angle = 90
doc.recompute()

linearpattern3 = doc.addObject("PartDesign::LinearPattern", "LinearPattern002")
body.addObject(linearpattern3)
linearpattern3.Originals = [groove2]
linearpattern3.Direction = (doc.Z_Axis, [""])
linearpattern3.Mode = "offset"
linearpattern3.Offset = Q("0.6875 in")
linearpattern3.Occurrences = 3
body.Tip = linearpattern3
doc.recompute()

mirrored = doc.addObject("PartDesign::Mirrored", "Mirrored")
body.addObject(mirrored)
mirrored.Originals = [groove2]
mirrored.MirrorPlane = (doc.YZ_Plane, [""])
body.Tip = mirrored

# Sketch on YZ plane
sketch12 = doc.addObject("Sketcher::SketchObject", "Sketch011")
body.addObject(sketch12)
sketch12.AttachmentSupport = (doc.YZ_Plane, [""])
sketch12.MapMode = "FlatFace"
sketch12.AttachmentOffset = App.Placement(App.Vector(0, 0, -0.75 * 25.4), App.Rotation())
sketch12.addGeometry(Part.Circle(App.Vector(1.6, 0, 0), App.Vector(0, 0, 1), 1.6), False)
sketch12.addGeometry(Part.LineSegment(App.Vector(7.9, 0, 0), App.Vector(7.9, -10, 0)), True)  # axis
sketch12.addConstraint(Sketcher.Constraint("Vertical", 1))
sketch12.addConstraint(Sketcher.Constraint("PointOnObject", 0, 3, -1))
sketch12.addConstraint(Sketcher.Constraint("PointOnObject", 1, 1, -1))
sketch12.addConstraint(Sketcher.Constraint("Diameter", 0, Q("0.125 in")))
sketch12.addConstraint(Sketcher.Constraint("DistanceX", 0, 3, 1, 1, Q("0.25 in")))
sketch12.addConstraint(Sketcher.Constraint("DistanceX", -1, 1, 0, 3, Q("0.0625 in")))
sketch12.addConstraint(Sketcher.Constraint("DistanceY", 1, 2, 1, 1, 10.0))
groove3 = doc.addObject("PartDesign::Groove", "Groove002")
body.addObject(groove3)
groove3.Profile = sketch12
groove3.ReferenceAxis = (sketch12, ["Axis0"])
groove3.Angle = 90

# Sketch on YZ plane
sketch13 = doc.addObject("Sketcher::SketchObject", "Sketch012")
body.addObject(sketch13)
sketch13.AttachmentSupport = (doc.YZ_Plane, [""])
sketch13.MapMode = "FlatFace"
sketch13.AttachmentOffset = App.Placement(App.Vector(0, 0, -0.75 * 25.4), App.Rotation())
sketch13.addGeometry(Part.Circle(App.Vector(1.6, 17.5, 0), App.Vector(0, 0, 1), 1.6), False)
sketch13.addGeometry(Part.LineSegment(App.Vector(7.9, 17.5, 0), App.Vector(7.9, 7.5, 0)), True)  # axis
sketch13.addConstraint(Sketcher.Constraint("Vertical", 1))
sketch13.addConstraint(Sketcher.Constraint("Horizontal", 0, 3, 1, 1))
sketch13.addConstraint(Sketcher.Constraint("Diameter", 0, Q("0.125 in")))
sketch13.addConstraint(Sketcher.Constraint("DistanceX", 0, 3, 1, 1, Q("0.25 in")))
sketch13.addConstraint(Sketcher.Constraint("DistanceX", -1, 1, 0, 3, Q("0.0625 in")))
sketch13.addConstraint(Sketcher.Constraint("DistanceY", -1, 1, 0, 3, Q("0.6875 in")))
sketch13.addConstraint(Sketcher.Constraint("DistanceY", 1, 2, 1, 1, 10.0))
groove4 = doc.addObject("PartDesign::Groove", "Groove003")
body.addObject(groove4)
groove4.Profile = sketch13
groove4.ReferenceAxis = (sketch13, ["Axis0"])
groove4.Angle = 90
doc.recompute()

fillet = doc.addObject("PartDesign::Fillet", "Fillet")
body.addObject(fillet)
fillet.Base = (groove4, edges_at(groove4, [
    (19.558, 13.78, -17.462),
    (19.558, 13.78, 0),
    (19.558, 13.78, 17.462),
    (-31.242, 13.78, 17.462),
    (-31.242, 13.78, 0),
    (-31.242, 13.78, -17.462),
]))
fillet.Radius = Q("0.02 in")

# Sketch on YZ plane
sketch14 = doc.addObject("Sketcher::SketchObject", "Sketch013")
body.addObject(sketch14)
sketch14.AttachmentSupport = (doc.YZ_Plane, [""])
sketch14.MapMode = "FlatFace"
sketch14.addGeometry(Part.LineSegment(App.Vector(-0.5, -12.7, 0), App.Vector(-0.5, -13.6, 0)), False)
sketch14.addGeometry(Part.ArcOfCircle(Part.Circle(App.Vector(0.4, -13.6, 0), App.Vector(0, 0, 1), 0.9), math.radians(180), math.radians(450)), False)
sketch14.addGeometry(Part.LineSegment(App.Vector(0.4, -12.7, 0), App.Vector(-0.5, -12.7, 0)), False)
sketch14.addConstraint(Sketcher.Constraint("Tangent", 0, 2, 1, 1))
sketch14.addConstraint(Sketcher.Constraint("Tangent", 1, 2, 2, 1))
sketch14.addConstraint(Sketcher.Constraint("Coincident", 2, 2, 0, 1))
sketch14.addConstraint(Sketcher.Constraint("Vertical", 0))
sketch14.addConstraint(Sketcher.Constraint("Horizontal", 2))
sketch14.addConstraint(Sketcher.Constraint("Radius", 1, Q("0.035 in")))
sketch14.addConstraint(Sketcher.Constraint("DistanceX", -1, 1, 1, 3, 0.390324))
sketch14.addConstraint(Sketcher.Constraint("DistanceY", 1, 3, -1, 1, 13.561843))

# Sketch on XZ plane
sketch15 = doc.addObject("Sketcher::SketchObject", "Sketch014")
body.addObject(sketch15)
sketch15.AttachmentSupport = (doc.XZ_Plane, [""])
sketch15.MapMode = "FlatFace"
sketch15.addGeometry(Part.LineSegment(App.Vector(-23.5, -12.7, 0), App.Vector(23.5, -12.7, 0)), False)
sketch15.addGeometry(Part.ArcOfCircle(Part.Circle(App.Vector(23.5, -17.5, 0), App.Vector(0, 0, 1), 4.8), math.radians(-90), math.radians(90)), False)
sketch15.addGeometry(Part.LineSegment(App.Vector(23.5, -22.3, 0), App.Vector(-23.5, -22.3, 0)), False)
sketch15.addGeometry(Part.ArcOfCircle(Part.Circle(App.Vector(-23.5, -17.5, 0), App.Vector(0, 0, 1), 4.8), math.radians(90), math.radians(270)), False)
sketch15.addConstraint(Sketcher.Constraint("Tangent", 0, 2, 1, 2))
sketch15.addConstraint(Sketcher.Constraint("Tangent", 1, 1, 2, 1))
sketch15.addConstraint(Sketcher.Constraint("Tangent", 2, 2, 3, 2))
sketch15.addConstraint(Sketcher.Constraint("Tangent", 3, 1, 0, 1))
sketch15.addConstraint(Sketcher.Constraint("Horizontal", 0))
sketch15.addConstraint(Sketcher.Constraint("Horizontal", 2))
sketch15.addConstraint(Sketcher.Constraint("DistanceX", 0, 1, 0, 2, Q("1.8528 in")))
sketch15.addConstraint(Sketcher.Constraint("DistanceY", 1, 3, -1, 1, Q("0.6875 in")))
sketch15.addConstraint(Sketcher.Constraint("DistanceX", -1, 1, 1, 3, Q("0.9264 in")))
sketch15.addConstraint(Sketcher.Constraint("Radius", 1, 4.789657))
doc.recompute()

subtractivepipe = doc.addObject("PartDesign::SubtractivePipe", "SubtractivePipe")
body.addObject(subtractivepipe)
subtractivepipe.Profile = sketch14
subtractivepipe.Spine = (sketch15, ["Edge1", "Edge2", "Edge3", "Edge4"])
doc.recompute()

linearpattern4 = doc.addObject("PartDesign::LinearPattern", "LinearPattern003")
body.addObject(linearpattern4)
linearpattern4.Originals = [subtractivepipe]
linearpattern4.Direction = (doc.Z_Axis, [""])
linearpattern4.Mode = "offset"
linearpattern4.Offset = Q("0.6875 in")
linearpattern4.Occurrences = 3
body.Tip = linearpattern4

doc.recompute()
